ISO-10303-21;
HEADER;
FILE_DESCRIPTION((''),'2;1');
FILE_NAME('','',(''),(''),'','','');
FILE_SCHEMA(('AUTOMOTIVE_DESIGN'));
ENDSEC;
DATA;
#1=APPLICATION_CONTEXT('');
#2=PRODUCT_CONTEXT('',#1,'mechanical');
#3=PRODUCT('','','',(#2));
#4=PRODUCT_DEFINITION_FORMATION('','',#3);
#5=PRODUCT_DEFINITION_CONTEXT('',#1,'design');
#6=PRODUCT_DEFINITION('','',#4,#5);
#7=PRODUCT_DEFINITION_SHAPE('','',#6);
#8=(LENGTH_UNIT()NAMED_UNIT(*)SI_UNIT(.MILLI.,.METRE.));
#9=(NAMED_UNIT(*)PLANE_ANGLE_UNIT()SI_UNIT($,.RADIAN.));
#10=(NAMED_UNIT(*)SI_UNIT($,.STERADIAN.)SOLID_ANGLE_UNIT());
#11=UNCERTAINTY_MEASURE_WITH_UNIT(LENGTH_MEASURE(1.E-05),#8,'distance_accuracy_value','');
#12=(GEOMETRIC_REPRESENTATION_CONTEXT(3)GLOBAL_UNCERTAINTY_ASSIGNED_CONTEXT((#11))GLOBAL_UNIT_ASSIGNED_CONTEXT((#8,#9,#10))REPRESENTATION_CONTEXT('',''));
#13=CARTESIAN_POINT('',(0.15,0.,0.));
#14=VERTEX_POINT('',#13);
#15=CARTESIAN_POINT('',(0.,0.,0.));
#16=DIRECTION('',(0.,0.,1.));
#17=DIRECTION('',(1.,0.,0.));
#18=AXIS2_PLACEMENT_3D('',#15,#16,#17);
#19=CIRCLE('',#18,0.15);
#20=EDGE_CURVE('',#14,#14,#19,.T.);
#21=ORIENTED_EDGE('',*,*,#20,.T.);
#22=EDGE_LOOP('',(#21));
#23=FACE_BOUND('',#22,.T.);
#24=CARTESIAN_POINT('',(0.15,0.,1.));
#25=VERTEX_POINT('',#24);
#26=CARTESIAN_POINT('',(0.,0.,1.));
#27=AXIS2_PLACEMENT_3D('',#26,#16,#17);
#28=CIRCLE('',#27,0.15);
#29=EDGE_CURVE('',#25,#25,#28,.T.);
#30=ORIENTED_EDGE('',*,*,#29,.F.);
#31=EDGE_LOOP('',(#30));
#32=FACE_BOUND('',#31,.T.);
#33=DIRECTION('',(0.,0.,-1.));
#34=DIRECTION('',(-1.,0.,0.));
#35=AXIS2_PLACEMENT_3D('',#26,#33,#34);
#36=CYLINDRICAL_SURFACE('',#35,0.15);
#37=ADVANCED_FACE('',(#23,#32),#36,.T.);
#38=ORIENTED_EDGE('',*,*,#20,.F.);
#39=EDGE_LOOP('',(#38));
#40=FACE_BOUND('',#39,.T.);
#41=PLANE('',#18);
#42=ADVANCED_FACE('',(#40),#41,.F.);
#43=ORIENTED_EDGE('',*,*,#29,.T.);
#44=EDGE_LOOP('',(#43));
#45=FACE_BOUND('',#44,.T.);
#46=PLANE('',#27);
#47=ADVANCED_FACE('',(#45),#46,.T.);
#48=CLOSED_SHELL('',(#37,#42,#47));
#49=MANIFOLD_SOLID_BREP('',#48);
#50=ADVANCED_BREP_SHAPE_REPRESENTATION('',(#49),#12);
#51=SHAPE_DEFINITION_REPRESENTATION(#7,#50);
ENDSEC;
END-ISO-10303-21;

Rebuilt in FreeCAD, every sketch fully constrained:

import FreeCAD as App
import Part
import Sketcher
from FreeCAD import Vector
Q = App.Units.Quantity

doc = App.newDocument("Part")
body = doc.addObject("PartDesign::Body", "Body")

sketch1 = body.newObject("Sketcher::SketchObject", "Sketch")
sketch1.AttachmentSupport = (doc.getObject("XY_Plane"), [""])
sketch1.MapMode = "FlatFace"
sketch1.addGeometry(Part.Circle(Vector(0, 0, 0), Vector(0, 0, 1), 0.15), False)
sketch1.addConstraint([
    Sketcher.Constraint("Coincident", 0, 3, -1, 1),
    Sketcher.Constraint("Diameter", 0, Q("0.3 mm")),
])
pad1 = body.newObject("PartDesign::Pad", "Pad")
pad1.Profile = sketch1
pad1.Length = 1

doc.recompute()
